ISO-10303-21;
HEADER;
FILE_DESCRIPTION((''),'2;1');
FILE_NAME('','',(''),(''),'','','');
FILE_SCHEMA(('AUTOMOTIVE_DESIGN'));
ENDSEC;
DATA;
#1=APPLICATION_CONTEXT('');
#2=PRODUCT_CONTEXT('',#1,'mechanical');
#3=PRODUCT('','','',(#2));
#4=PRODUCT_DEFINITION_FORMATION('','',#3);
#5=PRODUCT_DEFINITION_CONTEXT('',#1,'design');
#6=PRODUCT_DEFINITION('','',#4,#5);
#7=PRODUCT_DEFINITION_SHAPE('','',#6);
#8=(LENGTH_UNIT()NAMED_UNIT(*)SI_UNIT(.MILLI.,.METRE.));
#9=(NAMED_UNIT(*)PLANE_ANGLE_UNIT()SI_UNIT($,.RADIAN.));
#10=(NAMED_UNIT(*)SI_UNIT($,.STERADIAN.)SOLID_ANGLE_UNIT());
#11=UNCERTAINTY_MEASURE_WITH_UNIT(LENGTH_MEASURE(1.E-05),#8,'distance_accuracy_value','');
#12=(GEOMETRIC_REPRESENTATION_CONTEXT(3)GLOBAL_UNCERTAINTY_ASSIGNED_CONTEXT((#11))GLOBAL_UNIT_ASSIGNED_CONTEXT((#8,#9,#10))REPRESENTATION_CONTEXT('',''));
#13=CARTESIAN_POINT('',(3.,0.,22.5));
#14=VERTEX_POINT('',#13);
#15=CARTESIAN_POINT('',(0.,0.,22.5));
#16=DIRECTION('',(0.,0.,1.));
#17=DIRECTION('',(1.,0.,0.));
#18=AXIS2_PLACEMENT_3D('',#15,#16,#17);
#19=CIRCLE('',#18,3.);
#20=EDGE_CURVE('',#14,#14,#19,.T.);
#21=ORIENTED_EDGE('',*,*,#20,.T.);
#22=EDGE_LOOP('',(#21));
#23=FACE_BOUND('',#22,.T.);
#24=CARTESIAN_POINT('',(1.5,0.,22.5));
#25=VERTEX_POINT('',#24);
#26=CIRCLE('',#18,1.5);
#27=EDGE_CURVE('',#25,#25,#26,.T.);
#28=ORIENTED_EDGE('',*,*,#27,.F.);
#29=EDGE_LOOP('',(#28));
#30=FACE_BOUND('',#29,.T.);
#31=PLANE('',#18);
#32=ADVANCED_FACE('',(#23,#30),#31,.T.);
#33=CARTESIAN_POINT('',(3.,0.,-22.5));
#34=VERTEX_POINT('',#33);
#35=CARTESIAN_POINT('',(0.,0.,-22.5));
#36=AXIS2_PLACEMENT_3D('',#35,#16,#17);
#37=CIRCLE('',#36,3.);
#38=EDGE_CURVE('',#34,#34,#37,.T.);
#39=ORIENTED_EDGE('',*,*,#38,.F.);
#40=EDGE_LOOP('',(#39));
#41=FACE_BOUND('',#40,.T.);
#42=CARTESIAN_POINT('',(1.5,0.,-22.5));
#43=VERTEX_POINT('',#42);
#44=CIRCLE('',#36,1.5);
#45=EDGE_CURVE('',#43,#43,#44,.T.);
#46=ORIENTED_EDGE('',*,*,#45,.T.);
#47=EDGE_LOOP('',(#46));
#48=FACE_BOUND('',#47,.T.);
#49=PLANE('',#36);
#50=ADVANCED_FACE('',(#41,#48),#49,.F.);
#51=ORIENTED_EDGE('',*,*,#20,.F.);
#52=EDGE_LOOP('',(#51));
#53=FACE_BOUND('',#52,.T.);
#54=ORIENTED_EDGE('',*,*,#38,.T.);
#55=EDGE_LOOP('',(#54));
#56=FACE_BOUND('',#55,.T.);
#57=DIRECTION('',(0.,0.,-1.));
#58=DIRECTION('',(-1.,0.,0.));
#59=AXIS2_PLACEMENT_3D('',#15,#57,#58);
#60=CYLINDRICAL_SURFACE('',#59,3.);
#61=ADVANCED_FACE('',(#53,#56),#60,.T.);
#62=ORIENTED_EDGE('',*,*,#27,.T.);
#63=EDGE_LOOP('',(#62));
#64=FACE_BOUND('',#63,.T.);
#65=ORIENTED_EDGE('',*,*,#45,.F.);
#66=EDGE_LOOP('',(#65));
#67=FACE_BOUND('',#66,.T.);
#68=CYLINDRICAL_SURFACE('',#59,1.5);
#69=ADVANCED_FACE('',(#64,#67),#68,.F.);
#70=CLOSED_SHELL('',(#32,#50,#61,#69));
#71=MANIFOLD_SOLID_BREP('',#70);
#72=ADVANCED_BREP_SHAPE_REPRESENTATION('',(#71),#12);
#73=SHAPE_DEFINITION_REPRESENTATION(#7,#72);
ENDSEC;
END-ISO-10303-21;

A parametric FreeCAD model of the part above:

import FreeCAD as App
import Part
import Sketcher
from FreeCAD import Vector

doc = App.newDocument("Part")
params = doc.addObject("Spreadsheet::Sheet", "Params")
for row, (alias, value) in enumerate([
    ("sketch1_diameter", "6 mm"),
    ("sketch1_diameter2", "3 mm"),
    ("pad1_length", "45 mm"),
], start=1):
    params.set(f"A{row}", alias)
    params.set(f"B{row}", "=" + value)
    params.setAlias(f"B{row}", alias)

body = doc.addObject("PartDesign::Body", "Body")

sketch1 = body.newObject("Sketcher::SketchObject", "Sketch")
sketch1.AttachmentSupport = (doc.getObject("XY_Plane"), [""])
sketch1.MapMode = "FlatFace"
sketch1.addGeometry([
    Part.Circle(Vector(0, 0, 0), Vector(0, 0, 1), 3),
    Part.Circle(Vector(0, 0, 0), Vector(0, 0, 1), 1.5),
], False)
sketch1.addConstraint([
    Sketcher.Constraint("Coincident", 0, 3, -1, 1),
    Sketcher.Constraint("Coincident", 1, 3, -1, 1),
    Sketcher.Constraint("Diameter", 0, 6.0),
    Sketcher.Constraint("Diameter", 1, 3.0),
])
sketch1.setExpression("Constraints[2]", "Params.sketch1_diameter")
sketch1.setExpression("Constraints[3]", "Params.sketch1_diameter2")
pad1 = body.newObject("PartDesign::Pad", "Pad")
pad1.Profile = sketch1
pad1.setExpression("Length", "Params.pad1_length")
pad1.Midplane = True

doc.recompute()
